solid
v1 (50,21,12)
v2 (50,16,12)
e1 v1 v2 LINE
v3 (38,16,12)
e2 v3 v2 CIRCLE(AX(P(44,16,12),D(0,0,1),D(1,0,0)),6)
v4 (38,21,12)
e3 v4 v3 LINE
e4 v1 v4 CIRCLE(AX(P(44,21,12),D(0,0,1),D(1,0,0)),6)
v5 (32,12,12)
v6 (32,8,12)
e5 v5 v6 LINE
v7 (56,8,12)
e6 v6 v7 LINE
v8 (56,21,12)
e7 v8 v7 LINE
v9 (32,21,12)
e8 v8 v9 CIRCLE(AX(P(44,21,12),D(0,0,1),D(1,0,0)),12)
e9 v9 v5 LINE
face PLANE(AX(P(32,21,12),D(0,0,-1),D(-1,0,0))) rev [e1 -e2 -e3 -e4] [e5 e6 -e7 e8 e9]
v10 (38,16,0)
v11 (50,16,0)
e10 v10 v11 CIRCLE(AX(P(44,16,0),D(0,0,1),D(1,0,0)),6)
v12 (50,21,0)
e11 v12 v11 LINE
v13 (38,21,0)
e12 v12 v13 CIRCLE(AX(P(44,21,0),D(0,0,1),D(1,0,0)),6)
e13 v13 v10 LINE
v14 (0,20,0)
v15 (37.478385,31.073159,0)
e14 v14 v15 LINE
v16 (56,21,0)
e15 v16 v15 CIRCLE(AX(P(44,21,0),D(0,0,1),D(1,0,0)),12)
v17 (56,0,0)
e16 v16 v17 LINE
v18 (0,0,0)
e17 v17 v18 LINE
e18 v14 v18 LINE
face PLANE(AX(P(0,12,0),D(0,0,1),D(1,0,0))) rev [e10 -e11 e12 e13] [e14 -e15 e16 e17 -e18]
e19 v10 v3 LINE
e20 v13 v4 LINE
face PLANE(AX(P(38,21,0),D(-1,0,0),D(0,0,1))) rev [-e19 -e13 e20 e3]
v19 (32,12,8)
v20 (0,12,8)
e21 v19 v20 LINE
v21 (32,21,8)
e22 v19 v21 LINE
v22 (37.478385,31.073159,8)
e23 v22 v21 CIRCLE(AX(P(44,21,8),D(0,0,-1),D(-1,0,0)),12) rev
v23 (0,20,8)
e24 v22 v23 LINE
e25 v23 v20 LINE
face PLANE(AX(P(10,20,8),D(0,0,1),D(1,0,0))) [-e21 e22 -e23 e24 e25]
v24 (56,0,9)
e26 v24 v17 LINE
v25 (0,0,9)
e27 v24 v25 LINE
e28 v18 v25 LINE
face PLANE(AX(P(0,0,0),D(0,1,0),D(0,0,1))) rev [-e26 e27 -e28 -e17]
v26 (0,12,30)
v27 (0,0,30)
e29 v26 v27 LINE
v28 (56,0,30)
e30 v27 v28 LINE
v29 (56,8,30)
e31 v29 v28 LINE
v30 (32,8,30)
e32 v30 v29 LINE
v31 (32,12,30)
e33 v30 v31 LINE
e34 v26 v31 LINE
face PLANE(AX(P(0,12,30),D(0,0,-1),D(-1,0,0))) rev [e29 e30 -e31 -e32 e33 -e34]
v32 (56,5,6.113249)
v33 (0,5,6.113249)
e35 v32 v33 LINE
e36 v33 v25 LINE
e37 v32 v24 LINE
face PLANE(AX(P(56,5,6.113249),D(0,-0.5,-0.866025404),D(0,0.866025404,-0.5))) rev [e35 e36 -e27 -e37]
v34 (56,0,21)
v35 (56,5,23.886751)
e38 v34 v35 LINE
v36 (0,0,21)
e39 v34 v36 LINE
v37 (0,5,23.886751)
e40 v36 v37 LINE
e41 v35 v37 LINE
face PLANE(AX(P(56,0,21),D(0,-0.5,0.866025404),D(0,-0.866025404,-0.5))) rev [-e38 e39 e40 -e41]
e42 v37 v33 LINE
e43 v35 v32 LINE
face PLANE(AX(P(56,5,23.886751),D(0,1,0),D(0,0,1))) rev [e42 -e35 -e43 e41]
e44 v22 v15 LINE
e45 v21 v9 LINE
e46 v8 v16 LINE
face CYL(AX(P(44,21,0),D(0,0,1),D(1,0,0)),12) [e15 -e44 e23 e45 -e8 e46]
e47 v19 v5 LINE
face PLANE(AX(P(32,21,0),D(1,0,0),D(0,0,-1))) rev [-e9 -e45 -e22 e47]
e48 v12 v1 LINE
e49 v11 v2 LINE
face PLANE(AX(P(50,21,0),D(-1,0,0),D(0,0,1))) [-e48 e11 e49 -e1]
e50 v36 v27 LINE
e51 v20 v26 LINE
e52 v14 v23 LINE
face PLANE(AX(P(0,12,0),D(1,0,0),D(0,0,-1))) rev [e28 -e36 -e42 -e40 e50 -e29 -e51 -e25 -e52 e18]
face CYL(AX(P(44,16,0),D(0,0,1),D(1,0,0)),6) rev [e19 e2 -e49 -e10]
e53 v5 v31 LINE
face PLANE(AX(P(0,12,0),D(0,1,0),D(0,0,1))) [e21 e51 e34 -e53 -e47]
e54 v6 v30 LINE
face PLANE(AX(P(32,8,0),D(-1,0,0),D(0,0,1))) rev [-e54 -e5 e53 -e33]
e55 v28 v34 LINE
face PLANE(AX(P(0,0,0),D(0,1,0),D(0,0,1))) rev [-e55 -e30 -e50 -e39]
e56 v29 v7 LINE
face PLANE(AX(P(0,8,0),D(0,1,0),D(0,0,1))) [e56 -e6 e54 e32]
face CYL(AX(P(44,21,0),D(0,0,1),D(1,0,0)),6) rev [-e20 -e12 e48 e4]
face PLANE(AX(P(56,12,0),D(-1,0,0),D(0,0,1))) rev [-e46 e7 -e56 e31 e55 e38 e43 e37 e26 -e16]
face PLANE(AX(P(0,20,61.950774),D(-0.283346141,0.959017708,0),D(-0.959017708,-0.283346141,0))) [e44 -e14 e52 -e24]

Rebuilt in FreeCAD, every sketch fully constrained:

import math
import FreeCAD as App
import Part
import Sketcher
Q = App.Units.Quantity

doc = App.newDocument("Part")
body = doc.addObject("PartDesign::Body", "Body")

sketch1 = doc.addObject("Sketcher::SketchObject", "Sketch")
body.addObject(sketch1)
sketch1.AttachmentSupport = (doc.XZ_Plane, [""])
sketch1.MapMode = "FlatFace"
sketch1.addGeometry(Part.LineSegment(App.Vector(0, 0, 0), App.Vector(0, 30, 0)), False)
sketch1.addGeometry(Part.LineSegment(App.Vector(0, 30, 0), App.Vector(56, 30, 0)), False)
sketch1.addGeometry(Part.LineSegment(App.Vector(56, 30, 0), App.Vector(56, 0, 0)), False)
sketch1.addGeometry(Part.LineSegment(App.Vector(56, 0, 0), App.Vector(0, 0, 0)), False)
sketch1.addConstraint(Sketcher.Constraint("Coincident", 0, 2, 1, 1))
sketch1.addConstraint(Sketcher.Constraint("Coincident", 1, 2, 2, 1))
sketch1.addConstraint(Sketcher.Constraint("Coincident", 2, 2, 3, 1))
sketch1.addConstraint(Sketcher.Constraint("Coincident", 3, 2, 0, 1))
sketch1.addConstraint(Sketcher.Constraint("Vertical", 0))
sketch1.addConstraint(Sketcher.Constraint("Horizontal", 1))
sketch1.addConstraint(Sketcher.Constraint("Vertical", 2))
sketch1.addConstraint(Sketcher.Constraint("Horizontal", 3))
sketch1.addConstraint(Sketcher.Constraint("Coincident", 3, 2, -1, 1))
sketch1.addConstraint(Sketcher.Constraint("DistanceX", 1, 1, 1, 2, 56.0))
sketch1.addConstraint(Sketcher.Constraint("DistanceY", 0, 1, 0, 2, 30.0))
pad1 = doc.addObject("PartDesign::Pad", "Pad")
body.addObject(pad1)
pad1.Profile = sketch1
pad1.Length = 12
pad1.Reversed = True

sketch2 = doc.addObject("Sketcher::SketchObject", "Sketch001")
body.addObject(sketch2)
sketch2.AttachmentSupport = (doc.YZ_Plane, [""])
sketch2.MapMode = "FlatFace"
sketch2.addGeometry(Part.LineSegment(App.Vector(0, 9, 0), App.Vector(0, 21, 0)), False)
sketch2.addGeometry(Part.LineSegment(App.Vector(0, 21, 0), App.Vector(5, 24, 0)), False)
sketch2.addGeometry(Part.LineSegment(App.Vector(5, 24, 0), App.Vector(5, 6, 0)), False)
sketch2.addGeometry(Part.LineSegment(App.Vector(5, 6, 0), App.Vector(0, 9, 0)), False)
sketch2.addConstraint(Sketcher.Constraint("Coincident", 0, 2, 1, 1))
sketch2.addConstraint(Sketcher.Constraint("Coincident", 1, 2, 2, 1))
sketch2.addConstraint(Sketcher.Constraint("Coincident", 2, 2, 3, 1))
sketch2.addConstraint(Sketcher.Constraint("Coincident", 3, 2, 0, 1))
sketch2.addConstraint(Sketcher.Constraint("Vertical", 0))
sketch2.addConstraint(Sketcher.Constraint("Vertical", 2))
sketch2.addConstraint(Sketcher.Constraint("PointOnObject", 0, 2, -2))
sketch2.addConstraint(Sketcher.Constraint("Equal", 1, 3))
sketch2.addConstraint(Sketcher.Constraint("DistanceY", 0, 1, 0, 2, 12.0))
sketch2.addConstraint(Sketcher.Constraint("Angle", 1, Q("30 deg")))
sketch2.addConstraint(Sketcher.Constraint("DistanceY", -1, 1, 0, 2, 21.0))
sketch2.addConstraint(Sketcher.Constraint("DistanceX", -1, 1, 1, 2, 5.0))
pocket1 = doc.addObject("PartDesign::Pocket", "Pocket")
body.addObject(pocket1)
pocket1.Profile = sketch2
pocket1.Type = "ThroughAll"
pocket1.Reversed = True

sketch3 = doc.addObject("Sketcher::SketchObject", "Sketch002")
body.addObject(sketch3)
sketch3.AttachmentSupport = (doc.XZ_Plane, [""])
sketch3.MapMode = "FlatFace"
sketch3.AttachmentOffset = App.Placement(App.Vector(0, 0, -12), App.Rotation())
sketch3.addGeometry(Part.LineSegment(App.Vector(32, 0, 0), App.Vector(32, 30, 0)), False)
sketch3.addGeometry(Part.LineSegment(App.Vector(32, 30, 0), App.Vector(56, 30, 0)), False)
sketch3.addGeometry(Part.LineSegment(App.Vector(56, 30, 0), App.Vector(56, 0, 0)), False)
sketch3.addGeometry(Part.LineSegment(App.Vector(56, 0, 0), App.Vector(32, 0, 0)), False)
sketch3.addConstraint(Sketcher.Constraint("Coincident", 0, 2, 1, 1))
sketch3.addConstraint(Sketcher.Constraint("Coincident", 1, 2, 2, 1))
sketch3.addConstraint(Sketcher.Constraint("Coincident", 2, 2, 3, 1))
sketch3.addConstraint(Sketcher.Constraint("Coincident", 3, 2, 0, 1))
sketch3.addConstraint(Sketcher.Constraint("Vertical", 0))
sketch3.addConstraint(Sketcher.Constraint("Horizontal", 1))
sketch3.addConstraint(Sketcher.Constraint("Vertical", 2))
sketch3.addConstraint(Sketcher.Constraint("Horizontal", 3))
sketch3.addConstraint(Sketcher.Constraint("PointOnObject", 2, 2, -1))
sketch3.addConstraint(Sketcher.Constraint("DistanceX", 1, 1, 1, 2, 24.0))
sketch3.addConstraint(Sketcher.Constraint("DistanceY", 0, 1, 0, 2, 30.0))
sketch3.addConstraint(Sketcher.Constraint("DistanceX", -1, 1, 0, 2, 32.0))
pocket2 = doc.addObject("PartDesign::Pocket", "Pocket001")
body.addObject(pocket2)
pocket2.Profile = sketch3
pocket2.Length = 4
pocket2.Reversed = True

sketch4 = doc.addObject("Sketcher::SketchObject", "Sketch003")
body.addObject(sketch4)
sketch4.AttachmentSupport = (doc.XZ_Plane, [""])
sketch4.MapMode = "FlatFace"
sketch4.AttachmentOffset = App.Placement(App.Vector(0, 0, -12), App.Rotation())
sketch4.addGeometry(Part.LineSegment(App.Vector(0, 0, 0), App.Vector(0, 8, 0)), False)
sketch4.addGeometry(Part.LineSegment(App.Vector(0, 8, 0), App.Vector(10, 8, 0)), False)
sketch4.addGeometry(Part.LineSegment(App.Vector(10, 8, 0), App.Vector(10, 0, 0)), False)
sketch4.addGeometry(Part.LineSegment(App.Vector(10, 0, 0), App.Vector(0, 0, 0)), False)
sketch4.addConstraint(Sketcher.Constraint("Coincident", 0, 2, 1, 1))
sketch4.addConstraint(Sketcher.Constraint("Coincident", 1, 2, 2, 1))
sketch4.addConstraint(Sketcher.Constraint("Coincident", 2, 2, 3, 1))
sketch4.addConstraint(Sketcher.Constraint("Coincident", 3, 2, 0, 1))
sketch4.addConstraint(Sketcher.Constraint("Vertical", 0))
sketch4.addConstraint(Sketcher.Constraint("Horizontal", 1))
sketch4.addConstraint(Sketcher.Constraint("Vertical", 2))
sketch4.addConstraint(Sketcher.Constraint("Horizontal", 3))
sketch4.addConstraint(Sketcher.Constraint("Coincident", 3, 2, -1, 1))
sketch4.addConstraint(Sketcher.Constraint("DistanceX", 1, 1, 1, 2, 10.0))
sketch4.addConstraint(Sketcher.Constraint("DistanceY", 0, 1, 0, 2, 8.0))
pad2 = doc.addObject("PartDesign::Pad", "Pad001")
body.addObject(pad2)
pad2.Profile = sketch4
pad2.Length = 8
pad2.Reversed = True

sketch5 = doc.addObject("Sketcher::SketchObject", "Sketch004")
body.addObject(sketch5)
sketch5.AttachmentSupport = (doc.XZ_Plane, [""])
sketch5.MapMode = "FlatFace"
sketch5.AttachmentOffset = App.Placement(App.Vector(0, 0, -8), App.Rotation())
sketch5.addGeometry(Part.LineSegment(App.Vector(32, 0, 0), App.Vector(32, 12, 0)), False)
sketch5.addGeometry(Part.LineSegment(App.Vector(32, 12, 0), App.Vector(56, 12, 0)), False)
sketch5.addGeometry(Part.LineSegment(App.Vector(56, 12, 0), App.Vector(56, 0, 0)), False)
sketch5.addGeometry(Part.LineSegment(App.Vector(56, 0, 0), App.Vector(32, 0, 0)), False)
sketch5.addConstraint(Sketcher.Constraint("Coincident", 0, 2, 1, 1))
sketch5.addConstraint(Sketcher.Constraint("Coincident", 1, 2, 2, 1))
sketch5.addConstraint(Sketcher.Constraint("Coincident", 2, 2, 3, 1))
sketch5.addConstraint(Sketcher.Constraint("Coincident", 3, 2, 0, 1))
sketch5.addConstraint(Sketcher.Constraint("Vertical", 0))
sketch5.addConstraint(Sketcher.Constraint("Horizontal", 1))
sketch5.addConstraint(Sketcher.Constraint("Vertical", 2))
sketch5.addConstraint(Sketcher.Constraint("Horizontal", 3))
sketch5.addConstraint(Sketcher.Constraint("PointOnObject", 2, 2, -1))
sketch5.addConstraint(Sketcher.Constraint("DistanceX", 1, 1, 1, 2, 24.0))
sketch5.addConstraint(Sketcher.Constraint("DistanceY", 0, 1, 0, 2, 12.0))
sketch5.addConstraint(Sketcher.Constraint("DistanceX", -1, 1, 0, 2, 32.0))
pad3 = doc.addObject("PartDesign::Pad", "Pad002")
body.addObject(pad3)
pad3.Profile = sketch5
pad3.Length = 13
pad3.Reversed = True

sketch6 = doc.addObject("Sketcher::SketchObject", "Sketch005")
body.addObject(sketch6)
sketch6.AttachmentSupport = (doc.XY_Plane, [""])
sketch6.MapMode = "FlatFace"
sketch6.AttachmentOffset = App.Placement(App.Vector(0, 0, 12), App.Rotation())
sketch6.addGeometry(Part.Circle(App.Vector(44, 21, 0), App.Vector(0, 0, 1), 12), False)
sketch6.addConstraint(Sketcher.Constraint("Diameter", 0, 24.0))
sketch6.addConstraint(Sketcher.Constraint("DistanceX", -1, 1, 0, 3, 44.0))
sketch6.addConstraint(Sketcher.Constraint("DistanceY", -1, 1, 0, 3, 21.0))
pad4 = doc.addObject("PartDesign::Pad", "Pad003")
body.addObject(pad4)
pad4.Profile = sketch6
pad4.Length = 12
pad4.Reversed = True

sketch7 = doc.addObject("Sketcher::SketchObject", "Sketch006")
body.addObject(sketch7)
sketch7.AttachmentSupport = (doc.XY_Plane, [""])
sketch7.MapMode = "FlatFace"
sketch7.AttachmentOffset = App.Placement(App.Vector(0, 0, 8), App.Rotation())
sketch7.addGeometry(Part.LineSegment(App.Vector(0, 20, 0), App.Vector(44, 33, 0)), False)
sketch7.addGeometry(Part.ArcOfCircle(Part.Circle(App.Vector(44, 21, 0), App.Vector(0, 0, 1), 12), math.radians(88.37), math.radians(90)), False)
sketch7.addGeometry(Part.LineSegment(App.Vector(44.34, 33, 0), App.Vector(44, 10, 0)), False)
sketch7.addGeometry(Part.LineSegment(App.Vector(44, 10, 0), App.Vector(0, 10, 0)), False)
sketch7.addGeometry(Part.LineSegment(App.Vector(0, 10, 0), App.Vector(0, 20, 0)), False)
sketch7.addConstraint(Sketcher.Constraint("Coincident", 0, 2, 1, 2))
sketch7.addConstraint(Sketcher.Constraint("Coincident", 1, 1, 2, 1))
sketch7.addConstraint(Sketcher.Constraint("Coincident", 2, 2, 3, 1))
sketch7.addConstraint(Sketcher.Constraint("Coincident", 3, 2, 4, 1))
sketch7.addConstraint(Sketcher.Constraint("Coincident", 4, 2, 0, 1))
sketch7.addConstraint(Sketcher.Constraint("Horizontal", 3))
sketch7.addConstraint(Sketcher.Constraint("Vertical", 4))
sketch7.addConstraint(Sketcher.Constraint("PointOnObject", 3, 2, -2))
sketch7.addConstraint(Sketcher.Constraint("Vertical", 1, 3, 0, 2))
sketch7.addConstraint(Sketcher.Constraint("Vertical", 0, 2, 2, 2))
sketch7.addConstraint(Sketcher.Constraint("DistanceX", 3, 2, 3, 1, 44.0))
sketch7.addConstraint(Sketcher.Constraint("DistanceY", 4, 1, 4, 2, 10.0))
sketch7.addConstraint(Sketcher.Constraint("DistanceY", -1, 1, 0, 2, 33.0))
sketch7.addConstraint(Sketcher.Constraint("DistanceY", -1, 1, 2, 2, 10.0))
sketch7.addConstraint(Sketcher.Constraint("Radius", 1, 12.000002))
sketch7.addConstraint(Sketcher.Constraint("DistanceX", -1, 1, 1, 1, 44.340498))
pad5 = doc.addObject("PartDesign::Pad", "Pad004")
body.addObject(pad5)
pad5.Profile = sketch7
pad5.Length = 8
pad5.Reversed = True

sketch8 = doc.addObject("Sketcher::SketchObject", "Sketch007")
body.addObject(sketch8)
sketch8.AttachmentSupport = (doc.XY_Plane, [""])
sketch8.MapMode = "FlatFace"
sketch8.AttachmentOffset = App.Placement(App.Vector(0, 0, 12), App.Rotation())
sketch8.addGeometry(Part.LineSegment(App.Vector(38, 21, 0), App.Vector(38, 16, 0)), False)
sketch8.addGeometry(Part.ArcOfCircle(Part.Circle(App.Vector(44, 16, 0), App.Vector(0, 0, 1), 6), math.radians(180), math.radians(360)), False)
sketch8.addGeometry(Part.LineSegment(App.Vector(50, 16, 0), App.Vector(50, 21, 0)), False)
sketch8.addGeometry(Part.ArcOfCircle(Part.Circle(App.Vector(44, 21, 0), App.Vector(0, 0, 1), 6), math.radians(0), math.radians(180)), False)
sketch8.addConstraint(Sketcher.Constraint("Tangent", 0, 2, 1, 1))
sketch8.addConstraint(Sketcher.Constraint("Tangent", 1, 2, 2, 1))
sketch8.addConstraint(Sketcher.Constraint("Tangent", 2, 2, 3, 1))
sketch8.addConstraint(Sketcher.Constraint("Tangent", 3, 2, 0, 1))
sketch8.addConstraint(Sketcher.Constraint("Vertical", 0))
sketch8.addConstraint(Sketcher.Constraint("Vertical", 2))
sketch8.addConstraint(Sketcher.Constraint("Radius", 1, 6.0))
sketch8.addConstraint(Sketcher.Constraint("DistanceY", 0, 2, 0, 1, 5.0))
sketch8.addConstraint(Sketcher.Constraint("DistanceX", -1, 1, 1, 3, 44.0))
sketch8.addConstraint(Sketcher.Constraint("DistanceY", -1, 1, 1, 3, 16.0))
pocket3 = doc.addObject("PartDesign::Pocket", "Pocket002")
body.addObject(pocket3)
pocket3.Profile = sketch8
pocket3.Type = "ThroughAll"

doc.recompute()
